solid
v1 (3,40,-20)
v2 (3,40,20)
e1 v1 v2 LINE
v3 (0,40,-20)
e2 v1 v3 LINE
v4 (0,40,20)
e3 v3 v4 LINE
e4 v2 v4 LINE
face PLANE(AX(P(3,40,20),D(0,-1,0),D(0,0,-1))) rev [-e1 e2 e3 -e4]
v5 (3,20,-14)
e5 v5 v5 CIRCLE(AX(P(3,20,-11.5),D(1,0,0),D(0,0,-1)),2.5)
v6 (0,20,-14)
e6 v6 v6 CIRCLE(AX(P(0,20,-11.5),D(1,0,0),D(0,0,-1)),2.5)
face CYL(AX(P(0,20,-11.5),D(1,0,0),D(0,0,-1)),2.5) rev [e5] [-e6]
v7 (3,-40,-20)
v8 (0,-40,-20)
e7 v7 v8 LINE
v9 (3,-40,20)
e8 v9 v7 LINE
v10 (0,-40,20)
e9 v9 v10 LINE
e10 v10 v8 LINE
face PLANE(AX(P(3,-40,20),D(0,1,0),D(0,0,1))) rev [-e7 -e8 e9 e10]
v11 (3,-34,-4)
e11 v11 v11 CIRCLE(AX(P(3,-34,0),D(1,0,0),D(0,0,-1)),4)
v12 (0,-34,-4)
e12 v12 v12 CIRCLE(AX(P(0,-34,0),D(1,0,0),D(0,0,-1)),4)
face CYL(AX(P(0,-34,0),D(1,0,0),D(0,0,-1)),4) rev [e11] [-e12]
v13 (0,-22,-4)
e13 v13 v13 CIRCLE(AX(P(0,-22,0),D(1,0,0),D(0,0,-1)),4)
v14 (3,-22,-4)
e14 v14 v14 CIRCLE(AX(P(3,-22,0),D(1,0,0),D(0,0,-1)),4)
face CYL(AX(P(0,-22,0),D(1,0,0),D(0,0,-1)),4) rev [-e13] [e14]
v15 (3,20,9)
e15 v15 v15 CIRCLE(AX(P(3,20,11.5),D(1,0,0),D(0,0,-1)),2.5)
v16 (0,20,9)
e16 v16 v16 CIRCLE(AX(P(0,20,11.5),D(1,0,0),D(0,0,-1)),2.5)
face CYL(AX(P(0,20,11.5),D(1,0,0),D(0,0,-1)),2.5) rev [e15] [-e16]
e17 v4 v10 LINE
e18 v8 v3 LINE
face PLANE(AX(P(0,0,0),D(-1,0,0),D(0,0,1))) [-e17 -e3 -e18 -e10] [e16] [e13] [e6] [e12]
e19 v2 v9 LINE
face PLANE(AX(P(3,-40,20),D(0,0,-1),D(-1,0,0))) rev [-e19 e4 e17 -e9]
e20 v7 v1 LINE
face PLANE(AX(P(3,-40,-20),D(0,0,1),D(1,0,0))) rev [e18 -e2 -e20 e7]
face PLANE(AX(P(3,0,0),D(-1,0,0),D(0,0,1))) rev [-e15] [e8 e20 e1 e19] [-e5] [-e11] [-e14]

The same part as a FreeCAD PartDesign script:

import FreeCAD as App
import Part
import Sketcher

V = App.Vector

doc = App.newDocument("Part")
body = doc.addObject("PartDesign::Body", "Body")

sketch1 = body.newObject("Sketcher::SketchObject", "Sketch")
sketch1.AttachmentSupport = (doc.getObject("YZ_Plane"), [""])
sketch1.MapMode = "FlatFace"
sketch1.addGeometry([
    Part.LineSegment(V(40, 20, 0), V(-40, 20, 0)),
    Part.LineSegment(V(-40, 20, 0), V(-40, -20, 0)),
    Part.LineSegment(V(-40, -20, 0), V(40, -20, 0)),
    Part.LineSegment(V(40, -20, 0), V(40, 20, 0)),
], False)
sketch1.addConstraint([
    Sketcher.Constraint("Coincident", 0, 2, 1, 1),
    Sketcher.Constraint("Coincident", 1, 2, 2, 1),
    Sketcher.Constraint("Coincident", 2, 2, 3, 1),
    Sketcher.Constraint("Coincident", 3, 2, 0, 1),
    Sketcher.Constraint("Horizontal", 0),
    Sketcher.Constraint("Vertical", 1),
    Sketcher.Constraint("Horizontal", 2),
    Sketcher.Constraint("Vertical", 3),
    Sketcher.Constraint("Symmetric", 0, 2, 2, 2, -1, 1),
    Sketcher.Constraint("DistanceX", 0, 2, 0, 1, 80.0),
    Sketcher.Constraint("DistanceY", 1, 2, 1, 1, 40.0),
])
pad1 = body.newObject("PartDesign::Pad", "Pad")
pad1.Profile = sketch1
pad1.Length = 3

sketch2 = body.newObject("Sketcher::SketchObject", "Sketch001")
sketch2.AttachmentSupport = (doc.getObject("YZ_Plane"), [""])
sketch2.MapMode = "FlatFace"
sketch2.AttachmentOffset = App.Placement(V(0, 0, 3), App.Rotation())
sketch2.addGeometry([
    Part.Circle(V(-22, 0, 0), V(0, 0, 1), 4),
    Part.Circle(V(-34, 0, 0), V(0, 0, 1), 4),
    Part.Circle(V(20, 11.5, 0), V(0, 0, 1), 2.5),
    Part.Circle(V(20, -11.5, 0), V(0, 0, 1), 2.5),
], False)
sketch2.addConstraint([
    Sketcher.Constraint("Equal", 0, 1),
    Sketcher.Constraint("Equal", 2, 3),
    Sketcher.Constraint("Symmetric", 2, 3, 3, 3, -1),
    Sketcher.Constraint("PointOnObject", 0, 3, -1),
    Sketcher.Constraint("PointOnObject", 1, 3, -1),
    Sketcher.Constraint("Diameter", 0, 8.0),
    Sketcher.Constraint("Diameter", 2, 5.0),
    Sketcher.Constraint("DistanceX", 0, 3, -1, 1, 22.0),
    Sketcher.Constraint("DistanceX", 1, 3, -1, 1, 34.0),
    Sketcher.Constraint("DistanceX", -1, 1, 2, 3, 20.0),
    Sketcher.Constraint("DistanceY", 3, 3, 2, 3, 23.0),
])
pocket1 = body.newObject("PartDesign::Pocket", "Pocket")
pocket1.Profile = sketch2
pocket1.Type = "ThroughAll"

doc.recompute()
